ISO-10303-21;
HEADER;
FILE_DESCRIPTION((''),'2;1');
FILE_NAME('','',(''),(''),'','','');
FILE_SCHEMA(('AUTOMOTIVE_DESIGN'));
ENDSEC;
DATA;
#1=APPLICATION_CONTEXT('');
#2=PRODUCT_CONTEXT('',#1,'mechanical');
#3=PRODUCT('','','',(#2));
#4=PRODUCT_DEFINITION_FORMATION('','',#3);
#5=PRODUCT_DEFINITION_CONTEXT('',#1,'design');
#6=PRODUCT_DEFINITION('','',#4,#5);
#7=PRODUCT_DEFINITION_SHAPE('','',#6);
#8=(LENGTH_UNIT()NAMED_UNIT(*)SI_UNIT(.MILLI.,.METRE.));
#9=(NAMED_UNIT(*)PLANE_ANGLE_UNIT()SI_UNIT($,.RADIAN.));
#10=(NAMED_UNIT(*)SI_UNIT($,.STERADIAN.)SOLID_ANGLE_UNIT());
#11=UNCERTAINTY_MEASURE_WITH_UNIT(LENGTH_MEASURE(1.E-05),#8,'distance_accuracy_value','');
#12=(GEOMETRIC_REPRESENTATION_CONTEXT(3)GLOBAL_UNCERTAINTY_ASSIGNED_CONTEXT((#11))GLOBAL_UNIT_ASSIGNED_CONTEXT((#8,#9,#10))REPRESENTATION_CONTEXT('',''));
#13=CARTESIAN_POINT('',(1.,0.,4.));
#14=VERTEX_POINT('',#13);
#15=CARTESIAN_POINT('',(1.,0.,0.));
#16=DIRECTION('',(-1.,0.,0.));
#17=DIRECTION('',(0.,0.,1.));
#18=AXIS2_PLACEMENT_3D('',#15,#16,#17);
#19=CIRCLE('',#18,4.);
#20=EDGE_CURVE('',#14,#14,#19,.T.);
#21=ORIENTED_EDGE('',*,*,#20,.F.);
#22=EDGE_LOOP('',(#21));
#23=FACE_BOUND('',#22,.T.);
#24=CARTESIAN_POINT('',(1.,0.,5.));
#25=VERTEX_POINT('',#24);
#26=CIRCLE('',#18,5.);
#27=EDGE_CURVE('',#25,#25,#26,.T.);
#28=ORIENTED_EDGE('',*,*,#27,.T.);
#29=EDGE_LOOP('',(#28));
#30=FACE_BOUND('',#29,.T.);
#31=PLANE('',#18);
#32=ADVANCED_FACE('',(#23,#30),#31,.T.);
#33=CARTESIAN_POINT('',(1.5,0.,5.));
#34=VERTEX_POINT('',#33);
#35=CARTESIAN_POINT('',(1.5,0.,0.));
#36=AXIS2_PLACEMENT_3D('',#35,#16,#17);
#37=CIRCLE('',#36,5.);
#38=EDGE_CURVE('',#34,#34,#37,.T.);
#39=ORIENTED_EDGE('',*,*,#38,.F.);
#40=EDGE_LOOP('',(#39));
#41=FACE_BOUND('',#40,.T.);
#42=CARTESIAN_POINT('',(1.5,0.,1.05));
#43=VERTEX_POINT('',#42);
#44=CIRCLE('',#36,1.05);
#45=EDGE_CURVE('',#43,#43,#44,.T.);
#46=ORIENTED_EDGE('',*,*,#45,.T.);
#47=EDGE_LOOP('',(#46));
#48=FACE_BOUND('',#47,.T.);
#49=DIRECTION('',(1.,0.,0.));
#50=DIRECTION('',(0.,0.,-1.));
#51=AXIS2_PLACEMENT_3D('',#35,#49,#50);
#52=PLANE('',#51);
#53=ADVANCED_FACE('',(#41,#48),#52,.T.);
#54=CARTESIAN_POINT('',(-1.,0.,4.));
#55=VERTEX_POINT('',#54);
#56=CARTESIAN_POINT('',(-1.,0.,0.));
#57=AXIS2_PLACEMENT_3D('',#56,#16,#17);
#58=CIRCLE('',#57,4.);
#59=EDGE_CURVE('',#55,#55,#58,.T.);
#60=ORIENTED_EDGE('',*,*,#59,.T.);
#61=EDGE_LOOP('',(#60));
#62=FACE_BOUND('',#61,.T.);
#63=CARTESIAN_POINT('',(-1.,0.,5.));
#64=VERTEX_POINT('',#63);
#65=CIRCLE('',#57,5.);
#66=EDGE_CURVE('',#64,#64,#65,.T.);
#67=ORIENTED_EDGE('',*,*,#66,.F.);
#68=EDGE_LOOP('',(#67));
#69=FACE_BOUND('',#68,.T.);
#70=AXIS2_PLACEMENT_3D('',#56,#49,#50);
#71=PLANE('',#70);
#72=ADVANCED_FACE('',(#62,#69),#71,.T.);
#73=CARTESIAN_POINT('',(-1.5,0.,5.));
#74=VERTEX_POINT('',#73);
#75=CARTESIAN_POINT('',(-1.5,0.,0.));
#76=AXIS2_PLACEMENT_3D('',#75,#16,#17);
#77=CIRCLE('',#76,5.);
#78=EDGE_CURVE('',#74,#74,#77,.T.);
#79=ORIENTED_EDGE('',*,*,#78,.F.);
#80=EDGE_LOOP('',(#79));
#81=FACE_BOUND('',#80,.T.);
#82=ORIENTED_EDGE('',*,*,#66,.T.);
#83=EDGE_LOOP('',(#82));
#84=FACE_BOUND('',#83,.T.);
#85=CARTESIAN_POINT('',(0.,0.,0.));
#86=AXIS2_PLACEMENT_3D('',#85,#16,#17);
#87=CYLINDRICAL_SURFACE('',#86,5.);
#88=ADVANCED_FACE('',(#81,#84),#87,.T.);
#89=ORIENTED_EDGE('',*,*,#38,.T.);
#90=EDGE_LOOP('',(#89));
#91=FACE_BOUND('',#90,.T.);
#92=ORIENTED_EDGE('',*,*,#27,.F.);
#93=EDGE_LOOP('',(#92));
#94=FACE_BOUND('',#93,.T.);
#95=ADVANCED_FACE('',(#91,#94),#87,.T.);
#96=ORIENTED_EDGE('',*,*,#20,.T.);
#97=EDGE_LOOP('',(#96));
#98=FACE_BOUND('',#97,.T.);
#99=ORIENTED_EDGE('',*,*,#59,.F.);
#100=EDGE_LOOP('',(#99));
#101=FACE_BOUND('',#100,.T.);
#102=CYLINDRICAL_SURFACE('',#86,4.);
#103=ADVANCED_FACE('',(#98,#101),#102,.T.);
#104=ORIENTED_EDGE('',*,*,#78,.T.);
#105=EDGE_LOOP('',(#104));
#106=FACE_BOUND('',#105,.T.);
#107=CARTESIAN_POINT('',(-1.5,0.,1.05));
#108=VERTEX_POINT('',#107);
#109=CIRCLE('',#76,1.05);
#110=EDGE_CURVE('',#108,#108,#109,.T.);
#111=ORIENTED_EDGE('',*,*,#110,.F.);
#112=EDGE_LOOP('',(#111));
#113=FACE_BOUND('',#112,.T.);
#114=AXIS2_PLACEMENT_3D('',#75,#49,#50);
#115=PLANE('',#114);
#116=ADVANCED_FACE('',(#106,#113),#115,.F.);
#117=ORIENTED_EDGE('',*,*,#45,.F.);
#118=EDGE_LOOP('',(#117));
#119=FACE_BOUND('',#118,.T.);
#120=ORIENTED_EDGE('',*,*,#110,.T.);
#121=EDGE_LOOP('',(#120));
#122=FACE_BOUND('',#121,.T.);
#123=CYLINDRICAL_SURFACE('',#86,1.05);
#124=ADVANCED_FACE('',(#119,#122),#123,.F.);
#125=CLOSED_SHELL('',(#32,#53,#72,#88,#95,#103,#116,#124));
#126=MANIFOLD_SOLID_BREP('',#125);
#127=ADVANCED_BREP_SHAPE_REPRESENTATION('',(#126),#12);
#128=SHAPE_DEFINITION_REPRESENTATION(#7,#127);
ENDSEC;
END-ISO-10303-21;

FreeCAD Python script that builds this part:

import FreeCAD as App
import Part
import Sketcher
from FreeCAD import Vector
Q = App.Units.Quantity


def add_polygon(sketch, points):
    """Adds a closed chain of lines whose ends are joined by coincident constraints."""
    first, n = sketch.GeometryCount, len(points)
    for a, b in zip(points, points[1:] + points[:1]):
        sketch.addGeometry(Part.LineSegment(App.Vector(*a, 0), App.Vector(*b, 0)), False)
    for i in range(n):
        sketch.addConstraint(Sketcher.Constraint("Coincident", first + i, 2, first + (i + 1) % n, 1))

doc = App.newDocument("Part")
body = doc.addObject("PartDesign::Body", "Body")

sketch1 = body.newObject("Sketcher::SketchObject", "Sketch")
sketch1.AttachmentSupport = (doc.getObject("XY_Plane"), [""])
sketch1.MapMode = "FlatFace"
add_polygon(sketch1, [(1.5, 1.1), (1.5, 5), (1, 5), (1, 4), (-1, 4), (-1, 5), (-1.5, 5), (-1.5, 1.1)])
sketch1.addConstraint([
    Sketcher.Constraint("Vertical", 0),
    Sketcher.Constraint("Horizontal", 1),
    Sketcher.Constraint("Vertical", 2),
    Sketcher.Constraint("Horizontal", 3),
    Sketcher.Constraint("Vertical", 4),
    Sketcher.Constraint("Horizontal", 5),
    Sketcher.Constraint("Vertical", 6),
    Sketcher.Constraint("Horizontal", 7),
    Sketcher.Constraint("Symmetric", 1, 2, 4, 2, -2),
    Sketcher.Constraint("Equal", 1, 5),
    Sketcher.Constraint("DistanceX", 3, 2, 3, 1, Q("2 mm")),
    Sketcher.Constraint("DistanceX", 7, 1, 7, 2, Q("3 mm")),
    Sketcher.Constraint("DistanceY", 2, 2, 2, 1, Q("1 mm")),
    Sketcher.Constraint("DistanceY", -1, 1, 0, 2, Q("5 mm")),
    Sketcher.Constraint("DistanceY", 0, 1, 0, 2, Q("3.95 mm")),
])
revolution = body.newObject("PartDesign::Revolution", "Revolution")
revolution.Profile = sketch1
revolution.ReferenceAxis = (sketch1, ["H_Axis"])
revolution.Angle = 360

doc.recompute()
